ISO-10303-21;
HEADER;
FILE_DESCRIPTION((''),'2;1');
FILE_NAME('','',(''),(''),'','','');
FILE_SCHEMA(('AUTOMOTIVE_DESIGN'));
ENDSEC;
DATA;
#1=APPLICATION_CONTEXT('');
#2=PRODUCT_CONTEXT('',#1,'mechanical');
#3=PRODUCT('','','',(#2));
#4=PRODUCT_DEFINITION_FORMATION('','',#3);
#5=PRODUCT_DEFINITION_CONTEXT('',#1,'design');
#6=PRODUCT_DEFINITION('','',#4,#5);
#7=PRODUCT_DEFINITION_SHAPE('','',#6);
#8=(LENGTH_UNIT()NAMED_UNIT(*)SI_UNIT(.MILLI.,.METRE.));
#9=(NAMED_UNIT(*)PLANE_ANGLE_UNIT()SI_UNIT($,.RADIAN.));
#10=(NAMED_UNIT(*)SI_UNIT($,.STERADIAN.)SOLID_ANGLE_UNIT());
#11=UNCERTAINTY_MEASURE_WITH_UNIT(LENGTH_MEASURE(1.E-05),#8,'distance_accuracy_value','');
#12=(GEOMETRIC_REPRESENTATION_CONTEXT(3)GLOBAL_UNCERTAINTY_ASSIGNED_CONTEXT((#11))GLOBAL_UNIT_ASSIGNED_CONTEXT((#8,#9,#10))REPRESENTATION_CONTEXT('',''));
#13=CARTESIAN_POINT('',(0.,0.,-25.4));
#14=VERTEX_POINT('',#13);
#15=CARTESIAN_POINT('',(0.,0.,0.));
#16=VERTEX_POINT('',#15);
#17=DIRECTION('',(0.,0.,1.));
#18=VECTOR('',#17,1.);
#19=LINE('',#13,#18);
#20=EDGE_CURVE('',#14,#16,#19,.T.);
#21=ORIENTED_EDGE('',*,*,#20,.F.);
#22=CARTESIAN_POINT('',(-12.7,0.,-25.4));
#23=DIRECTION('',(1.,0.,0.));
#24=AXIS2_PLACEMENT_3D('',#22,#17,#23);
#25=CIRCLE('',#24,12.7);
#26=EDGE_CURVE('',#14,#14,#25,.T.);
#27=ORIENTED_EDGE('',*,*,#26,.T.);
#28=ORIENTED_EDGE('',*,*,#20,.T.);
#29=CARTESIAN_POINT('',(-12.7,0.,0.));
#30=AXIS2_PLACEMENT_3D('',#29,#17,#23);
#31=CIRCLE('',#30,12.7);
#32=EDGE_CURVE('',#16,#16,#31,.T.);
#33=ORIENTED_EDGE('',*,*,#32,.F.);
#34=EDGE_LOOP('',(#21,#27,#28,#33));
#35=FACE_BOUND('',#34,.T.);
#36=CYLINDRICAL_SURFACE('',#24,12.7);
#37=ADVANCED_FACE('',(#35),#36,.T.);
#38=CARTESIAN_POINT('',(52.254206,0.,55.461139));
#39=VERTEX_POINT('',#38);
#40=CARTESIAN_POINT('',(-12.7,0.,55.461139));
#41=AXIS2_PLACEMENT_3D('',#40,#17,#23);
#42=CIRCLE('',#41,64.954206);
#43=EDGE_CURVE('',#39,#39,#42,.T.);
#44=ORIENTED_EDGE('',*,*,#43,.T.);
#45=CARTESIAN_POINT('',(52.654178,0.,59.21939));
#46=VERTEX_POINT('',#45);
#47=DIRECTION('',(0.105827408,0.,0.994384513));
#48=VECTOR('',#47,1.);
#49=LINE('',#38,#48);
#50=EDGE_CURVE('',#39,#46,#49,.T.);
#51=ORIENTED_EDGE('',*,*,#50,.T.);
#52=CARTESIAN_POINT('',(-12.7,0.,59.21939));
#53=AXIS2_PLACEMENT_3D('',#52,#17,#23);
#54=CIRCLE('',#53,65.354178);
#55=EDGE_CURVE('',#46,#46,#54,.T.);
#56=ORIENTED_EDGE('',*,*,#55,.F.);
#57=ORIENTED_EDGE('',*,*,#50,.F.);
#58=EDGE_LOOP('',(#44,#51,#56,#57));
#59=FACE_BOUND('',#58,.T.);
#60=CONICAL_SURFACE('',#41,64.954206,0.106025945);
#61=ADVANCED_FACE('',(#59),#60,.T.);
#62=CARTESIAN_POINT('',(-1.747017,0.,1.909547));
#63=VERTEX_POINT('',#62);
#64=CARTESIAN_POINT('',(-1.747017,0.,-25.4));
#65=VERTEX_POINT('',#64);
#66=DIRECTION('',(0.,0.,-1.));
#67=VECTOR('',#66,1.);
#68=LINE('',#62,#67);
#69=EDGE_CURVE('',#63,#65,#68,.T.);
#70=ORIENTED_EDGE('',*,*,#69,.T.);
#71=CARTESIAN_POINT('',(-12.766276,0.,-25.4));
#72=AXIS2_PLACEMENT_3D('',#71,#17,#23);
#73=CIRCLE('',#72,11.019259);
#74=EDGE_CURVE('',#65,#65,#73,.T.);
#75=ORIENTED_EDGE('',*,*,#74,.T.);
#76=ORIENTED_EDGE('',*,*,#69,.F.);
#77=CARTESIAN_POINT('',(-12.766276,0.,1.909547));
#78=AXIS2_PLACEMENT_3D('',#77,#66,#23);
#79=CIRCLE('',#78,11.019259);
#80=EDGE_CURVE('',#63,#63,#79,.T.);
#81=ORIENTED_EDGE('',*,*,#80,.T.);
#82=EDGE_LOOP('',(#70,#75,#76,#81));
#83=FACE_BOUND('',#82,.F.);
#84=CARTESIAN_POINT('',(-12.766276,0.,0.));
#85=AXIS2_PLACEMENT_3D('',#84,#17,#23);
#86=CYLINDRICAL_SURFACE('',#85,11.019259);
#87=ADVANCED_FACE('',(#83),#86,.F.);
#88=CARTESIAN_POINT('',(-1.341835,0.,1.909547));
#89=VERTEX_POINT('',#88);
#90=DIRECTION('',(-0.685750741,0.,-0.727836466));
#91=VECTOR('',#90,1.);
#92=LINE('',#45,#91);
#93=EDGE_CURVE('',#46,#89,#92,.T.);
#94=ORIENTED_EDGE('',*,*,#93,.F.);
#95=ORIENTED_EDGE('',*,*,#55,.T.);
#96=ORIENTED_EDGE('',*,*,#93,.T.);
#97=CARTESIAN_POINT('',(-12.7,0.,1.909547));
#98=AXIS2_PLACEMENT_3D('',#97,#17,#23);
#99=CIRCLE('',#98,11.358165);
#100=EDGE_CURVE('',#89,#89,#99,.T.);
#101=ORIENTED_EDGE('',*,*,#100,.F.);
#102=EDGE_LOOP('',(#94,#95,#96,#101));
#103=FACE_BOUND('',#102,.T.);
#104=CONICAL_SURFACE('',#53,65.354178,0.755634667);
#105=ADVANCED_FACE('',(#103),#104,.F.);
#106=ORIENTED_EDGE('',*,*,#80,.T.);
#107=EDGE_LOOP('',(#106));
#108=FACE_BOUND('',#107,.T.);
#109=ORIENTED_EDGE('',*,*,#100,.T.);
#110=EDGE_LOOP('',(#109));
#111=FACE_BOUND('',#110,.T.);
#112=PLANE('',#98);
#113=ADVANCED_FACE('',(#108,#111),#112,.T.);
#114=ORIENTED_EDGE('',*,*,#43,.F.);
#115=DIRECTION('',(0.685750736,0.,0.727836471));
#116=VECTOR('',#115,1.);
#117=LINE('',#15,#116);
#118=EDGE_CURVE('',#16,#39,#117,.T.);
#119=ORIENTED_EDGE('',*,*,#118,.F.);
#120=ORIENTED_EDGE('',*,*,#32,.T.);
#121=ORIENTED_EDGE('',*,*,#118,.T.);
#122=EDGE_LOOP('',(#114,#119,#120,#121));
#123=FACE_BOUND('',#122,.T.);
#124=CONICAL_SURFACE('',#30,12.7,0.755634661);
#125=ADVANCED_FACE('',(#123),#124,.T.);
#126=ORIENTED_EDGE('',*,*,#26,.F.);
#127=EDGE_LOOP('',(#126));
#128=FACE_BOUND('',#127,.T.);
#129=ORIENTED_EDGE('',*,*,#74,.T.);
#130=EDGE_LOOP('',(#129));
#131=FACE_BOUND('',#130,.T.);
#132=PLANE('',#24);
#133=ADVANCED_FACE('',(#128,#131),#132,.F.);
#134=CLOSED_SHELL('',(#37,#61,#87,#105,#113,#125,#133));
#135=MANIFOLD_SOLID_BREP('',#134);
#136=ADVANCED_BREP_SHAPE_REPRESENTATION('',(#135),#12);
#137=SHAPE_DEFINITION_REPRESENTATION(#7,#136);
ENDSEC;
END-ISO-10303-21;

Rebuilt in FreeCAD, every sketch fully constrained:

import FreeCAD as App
import Part
import Sketcher
from FreeCAD import Vector
Q = App.Units.Quantity

doc = App.newDocument("Part")
body = doc.addObject("PartDesign::Body", "Body")

# Sketch on XZ plane
sketch1 = doc.addObject("Sketcher::SketchObject", "Sketch")
body.addObject(sketch1)
sketch1.AttachmentSupport = (doc.XZ_Plane, [""])
sketch1.MapMode = "FlatFace"
sketch1.addGeometry(Part.LineSegment(Vector(0, -25.4, 0), Vector(0, 0, 0)), False)
sketch1.addGeometry(Part.LineSegment(Vector(0, 0, 0), Vector(52.3, 55.5, 0)), False)
sketch1.addGeometry(Part.LineSegment(Vector(52.3, 55.5, 0), Vector(52.7, 59.2, 0)), False)
sketch1.addGeometry(Part.LineSegment(Vector(52.7, 59.2, 0), Vector(-1.3, 1.9, 0)), False)
sketch1.addGeometry(Part.LineSegment(Vector(-1.3, 1.9, 0), Vector(-12.7, 1.9, 0)), False)
sketch1.addGeometry(Part.LineSegment(Vector(-12.7, 1.9, 0), Vector(-12.7, -25.4, 0)), False)
sketch1.addGeometry(Part.LineSegment(Vector(-12.7, -25.4, 0), Vector(0, -25.4, 0)), False)
sketch1.addGeometry(Part.LineSegment(Vector(-12.7, -25.4, 0), Vector(-12.7, 59.2, 0)), True)  # axis
sketch1.addConstraint(Sketcher.Constraint("Coincident", 0, 2, 1, 1))
sketch1.addConstraint(Sketcher.Constraint("Coincident", 1, 2, 2, 1))
sketch1.addConstraint(Sketcher.Constraint("Coincident", 2, 2, 3, 1))
sketch1.addConstraint(Sketcher.Constraint("Coincident", 3, 2, 4, 1))
sketch1.addConstraint(Sketcher.Constraint("Coincident", 4, 2, 5, 1))
sketch1.addConstraint(Sketcher.Constraint("Coincident", 5, 2, 6, 1))
sketch1.addConstraint(Sketcher.Constraint("Coincident", 6, 2, 0, 1))
sketch1.addConstraint(Sketcher.Constraint("Vertical", 0))
sketch1.addConstraint(Sketcher.Constraint("Horizontal", 4))
sketch1.addConstraint(Sketcher.Constraint("Vertical", 5))
sketch1.addConstraint(Sketcher.Constraint("Horizontal", 6))
sketch1.addConstraint(Sketcher.Constraint("Vertical", 7))
sketch1.addConstraint(Sketcher.Constraint("Coincident", 0, 2, -1, 1))
sketch1.addConstraint(Sketcher.Constraint("Coincident", 7, 1, 5, 2))
sketch1.addConstraint(Sketcher.Constraint("Parallel", 1, 3))
sketch1.addConstraint(Sketcher.Constraint("Horizontal", 2, 2, 7, 2))
sketch1.addConstraint(Sketcher.Constraint("DistanceY", 0, 1, 0, 2, Q("1 in")))
sketch1.addConstraint(Sketcher.Constraint("Distance", 1, Q("3 in")))
sketch1.addConstraint(Sketcher.Constraint("DistanceX", 6, 1, 6, 2, Q("0.5 in")))
sketch1.addConstraint(Sketcher.Constraint("Distance", 3, Q("3.1 in")))
sketch1.addConstraint(Sketcher.Constraint("DistanceY", 7, 1, 7, 2, 84.61939))
sketch1.addConstraint(Sketcher.Constraint("DistanceX", 4, 2, 4, 1, 11.358165))
sketch1.addConstraint(Sketcher.Constraint("DistanceY", 5, 2, 5, 1, 27.309547))
revolution = doc.addObject("PartDesign::Revolution", "Revolution")
body.addObject(revolution)
revolution.Profile = sketch1
revolution.ReferenceAxis = (sketch1, ["Axis0"])
revolution.Angle = 360

# Sketch on XY plane
sketch2 = doc.addObject("Sketcher::SketchObject", "Sketch001")
body.addObject(sketch2)
sketch2.AttachmentSupport = (doc.XY_Plane, [""])
sketch2.MapMode = "FlatFace"
sketch2.addGeometry(Part.Circle(Vector(-13, 0, 0), Vector(0, 0, 1), 11), False)
sketch2.addConstraint(Sketcher.Constraint("PointOnObject", 0, 3, -1))
sketch2.addConstraint(Sketcher.Constraint("Diameter", 0, 22.038518))
sketch2.addConstraint(Sketcher.Constraint("DistanceX", 0, 3, -1, 1, 12.766276))
pocket1 = doc.addObject("PartDesign::Pocket", "Pocket")
body.addObject(pocket1)
pocket1.Profile = sketch2
pocket1.Length = Q("2 in")

# Sketch on XY plane
sketch3 = doc.addObject("Sketcher::SketchObject", "Sketch002")
body.addObject(sketch3)
sketch3.AttachmentSupport = (doc.XY_Plane, [""])
sketch3.MapMode = "FlatFace"
sketch3.addGeometry(Part.Circle(Vector(-13, 0, 0), Vector(0, 0, 1), 11), False)
sketch3.addConstraint(Sketcher.Constraint("PointOnObject", 0, 3, -1))
sketch3.addConstraint(Sketcher.Constraint("Diameter", 0, 22.038518))
sketch3.addConstraint(Sketcher.Constraint("DistanceX", 0, 3, -1, 1, 12.766276))
pocket2 = doc.addObject("PartDesign::Pocket", "Pocket001")
body.addObject(pocket2)
pocket2.Profile = sketch3
pocket2.Length = Q("1 in")
pocket2.Reversed = True

doc.recompute()
